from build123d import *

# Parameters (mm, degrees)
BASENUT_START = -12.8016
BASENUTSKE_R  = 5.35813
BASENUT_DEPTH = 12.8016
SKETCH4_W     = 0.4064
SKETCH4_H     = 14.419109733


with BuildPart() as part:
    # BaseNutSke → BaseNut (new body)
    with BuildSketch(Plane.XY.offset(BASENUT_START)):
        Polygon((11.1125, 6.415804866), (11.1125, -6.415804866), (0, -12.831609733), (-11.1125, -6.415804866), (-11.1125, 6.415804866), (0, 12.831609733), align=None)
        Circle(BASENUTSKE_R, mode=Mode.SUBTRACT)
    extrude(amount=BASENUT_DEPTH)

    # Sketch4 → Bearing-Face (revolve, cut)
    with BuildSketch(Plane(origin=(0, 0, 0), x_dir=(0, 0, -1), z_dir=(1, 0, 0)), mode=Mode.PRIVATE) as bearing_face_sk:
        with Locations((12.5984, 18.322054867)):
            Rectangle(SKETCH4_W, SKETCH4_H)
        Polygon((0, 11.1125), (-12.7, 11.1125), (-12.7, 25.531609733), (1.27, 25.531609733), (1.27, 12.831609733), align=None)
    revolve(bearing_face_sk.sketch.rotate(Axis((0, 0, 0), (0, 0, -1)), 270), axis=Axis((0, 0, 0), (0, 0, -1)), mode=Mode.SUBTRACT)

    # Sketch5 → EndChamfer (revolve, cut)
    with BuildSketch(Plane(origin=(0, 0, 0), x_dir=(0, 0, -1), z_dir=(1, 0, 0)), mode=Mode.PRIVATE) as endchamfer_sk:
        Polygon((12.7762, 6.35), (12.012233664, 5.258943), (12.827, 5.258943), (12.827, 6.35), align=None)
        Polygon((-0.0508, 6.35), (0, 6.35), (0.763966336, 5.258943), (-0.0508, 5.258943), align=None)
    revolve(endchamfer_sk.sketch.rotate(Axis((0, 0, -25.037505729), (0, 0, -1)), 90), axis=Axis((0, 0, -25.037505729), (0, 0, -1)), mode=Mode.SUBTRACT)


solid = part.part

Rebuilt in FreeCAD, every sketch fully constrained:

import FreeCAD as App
import Part
import Sketcher
from FreeCAD import Vector
Q = App.Units.Quantity

doc = App.newDocument("Part")
body = doc.addObject("PartDesign::Body", "Body")

# Sketch on XY plane
sketch1 = body.newObject("Sketcher::SketchObject", "Sketch")
sketch1.AttachmentSupport = (doc.getObject("XY_Plane"), [""])
sketch1.MapMode = "FlatFace"
sketch1.AttachmentOffset = App.Placement(Vector(0, 0, -0.504 * 25.4), App.Rotation())
sketch1.addGeometry([
    Part.LineSegment(Vector(11, -6, 0), Vector(11, 6, 0)),  # 0
    Part.LineSegment(Vector(11, 6, 0), Vector(0, 13, 0)),  # 1
    Part.LineSegment(Vector(0, 13, 0), Vector(-11, 6, 0)),  # 2
    Part.LineSegment(Vector(-11, 6, 0), Vector(-11, -6, 0)),  # 3
    Part.LineSegment(Vector(-11, -6, 0), Vector(0, -13, 0)),  # 4
    Part.LineSegment(Vector(0, -13, 0), Vector(11, -6, 0)),  # 5
    Part.Circle(Vector(0, 0, 0), Vector(0, 0, 1), 5),  # 6
], False)
sketch1.addConstraint([
    Sketcher.Constraint("Coincident", 0, 2, 1, 1),
    Sketcher.Constraint("Coincident", 1, 2, 2, 1),
    Sketcher.Constraint("Coincident", 2, 2, 3, 1),
    Sketcher.Constraint("Coincident", 3, 2, 4, 1),
    Sketcher.Constraint("Coincident", 4, 2, 5, 1),
    Sketcher.Constraint("Coincident", 5, 2, 0, 1),
    Sketcher.Constraint("Vertical", 0),
    Sketcher.Constraint("Vertical", 3),
    Sketcher.Constraint("Coincident", 6, 3, -1, 1),
    Sketcher.Constraint("Symmetric", 0, 2, 3, 2, -1, 1),
    Sketcher.Constraint("Symmetric", 1, 2, 4, 2, -1, 1),
    Sketcher.Constraint("PointOnObject", 1, 2, -2),
    Sketcher.Constraint("Parallel", 2, 5),
    Sketcher.Constraint("Horizontal", 0, 2, 2, 2),
    Sketcher.Constraint("Angle", 1, Q("150 deg")),
    Sketcher.Constraint("Diameter", 6, Q("0.4219 in")),
    Sketcher.Constraint("DistanceX", -1, 1, 0, 2, Q("0.4375 in")),
    Sketcher.Constraint("DistanceY", 0, 1, 0, 2, Q("12.83161 mm")),
])
pad1 = body.newObject("PartDesign::Pad", "Pad")
pad1.Profile = sketch1
pad1.Length = Q("0.504 in")

# Sketch on YZ plane
sketch2 = body.newObject("Sketcher::SketchObject", "Sketch001")
sketch2.AttachmentSupport = (doc.getObject("YZ_Plane"), [""])
sketch2.MapMode = "FlatFace"
sketch2.addGeometry([
    Part.LineSegment(Vector(25.53, -12.4, 0), Vector(11.11, -12.4, 0)),  # 0
    Part.LineSegment(Vector(11.11, -12.4, 0), Vector(11.11, -12.8, 0)),  # 1
    Part.LineSegment(Vector(11.11, -12.8, 0), Vector(25.53, -12.8, 0)),  # 2
    Part.LineSegment(Vector(25.53, -12.8, 0), Vector(25.53, -12.4, 0)),  # 3
    Part.LineSegment(Vector(11.11, 12.7, 0), Vector(11.11, 0, 0)),  # 4
    Part.LineSegment(Vector(11.11, 0, 0), Vector(12.83, -1.27, 0)),  # 5
    Part.LineSegment(Vector(12.83, -1.27, 0), Vector(25.53, -1.27, 0)),  # 6
    Part.LineSegment(Vector(25.53, -1.27, 0), Vector(25.53, 12.7, 0)),  # 7
    Part.LineSegment(Vector(25.53, 12.7, 0), Vector(11.11, 12.7, 0)),  # 8
], False)
sketch2.addConstraint([
    Sketcher.Constraint("Coincident", 0, 2, 1, 1),
    Sketcher.Constraint("Coincident", 1, 2, 2, 1),
    Sketcher.Constraint("Coincident", 2, 2, 3, 1),
    Sketcher.Constraint("Coincident", 3, 2, 0, 1),
    Sketcher.Constraint("Coincident", 4, 2, 5, 1),
    Sketcher.Constraint("Coincident", 5, 2, 6, 1),
    Sketcher.Constraint("Coincident", 6, 2, 7, 1),
    Sketcher.Constraint("Coincident", 7, 2, 8, 1),
    Sketcher.Constraint("Coincident", 8, 2, 4, 1),
    Sketcher.Constraint("Horizontal", 0),
    Sketcher.Constraint("Vertical", 1),
    Sketcher.Constraint("Horizontal", 2),
    Sketcher.Constraint("Vertical", 3),
    Sketcher.Constraint("Vertical", 4),
    Sketcher.Constraint("Horizontal", 6),
    Sketcher.Constraint("Vertical", 7),
    Sketcher.Constraint("Horizontal", 8),
    Sketcher.Constraint("PointOnObject", 4, 2, -1),
    Sketcher.Constraint("Vertical", 1, 2, 4, 2),
    Sketcher.Constraint("Vertical", 3, 2, 6, 2),
    Sketcher.Constraint("Equal", 6, 4),
    Sketcher.Constraint("DistanceX", 6, 1, 6, 2, Q("0.5 in")),
    Sketcher.Constraint("DistanceY", 7, 1, 7, 2, Q("0.55 in")),
    Sketcher.Constraint("DistanceY", 1, 2, 1, 1, Q("0.016 in")),
    Sketcher.Constraint("DistanceX", -1, 1, 0, 2, Q("0.4375 in")),
    Sketcher.Constraint("DistanceY", 0, 2, -1, 1, Q("0.488 in")),
    Sketcher.Constraint("DistanceX", 0, 2, 0, 1, Q("14.41911 mm")),
])
groove = body.newObject("PartDesign::Groove", "Groove")
groove.Profile = sketch2
groove.ReferenceAxis = (sketch2, ["V_Axis"])
groove.Angle = 360

# Sketch on YZ plane
sketch3 = body.newObject("Sketcher::SketchObject", "Sketch002")
sketch3.AttachmentSupport = (doc.getObject("YZ_Plane"), [""])
sketch3.MapMode = "FlatFace"
sketch3.addGeometry([
    Part.LineSegment(Vector(6.35, -12.78, 0), Vector(5.26, -12.01, 0)),  # 0
    Part.LineSegment(Vector(5.26, -12.01, 0), Vector(5.26, -12.83, 0)),  # 1
    Part.LineSegment(Vector(5.26, -12.83, 0), Vector(6.35, -12.83, 0)),  # 2
    Part.LineSegment(Vector(6.35, -12.83, 0), Vector(6.35, -12.78, 0)),  # 3
    Part.LineSegment(Vector(6.35, 0, 0), Vector(6.35, 0.05, 0)),  # 4
    Part.LineSegment(Vector(6.35, 0.05, 0), Vector(5.26, 0.05, 0)),  # 5
    Part.LineSegment(Vector(5.26, 0.05, 0), Vector(5.26, -0.76, 0)),  # 6
    Part.LineSegment(Vector(5.26, -0.76, 0), Vector(6.35, 0, 0)),  # 7
], False)
sketch3.addConstraint([
    Sketcher.Constraint("Coincident", 0, 2, 1, 1),
    Sketcher.Constraint("Coincident", 1, 2, 2, 1),
    Sketcher.Constraint("Coincident", 2, 2, 3, 1),
    Sketcher.Constraint("Coincident", 3, 2, 0, 1),
    Sketcher.Constraint("Coincident", 4, 2, 5, 1),
    Sketcher.Constraint("Coincident", 5, 2, 6, 1),
    Sketcher.Constraint("Coincident", 6, 2, 7, 1),
    Sketcher.Constraint("Coincident", 7, 2, 4, 1),
    Sketcher.Constraint("Vertical", 1),
    Sketcher.Constraint("Horizontal", 2),
    Sketcher.Constraint("Vertical", 3),
    Sketcher.Constraint("Vertical", 4),
    Sketcher.Constraint("Horizontal", 5),
    Sketcher.Constraint("Vertical", 6),
    Sketcher.Constraint("PointOnObject", 7, 2, -1),
    Sketcher.Constraint("Vertical", 3, 2, 4, 2),
    Sketcher.Constraint("Vertical", 1, 2, 5, 2),
    Sketcher.Constraint("Equal", 3, 4),
    Sketcher.Constraint("Equal", 1, 6),
    Sketcher.Constraint("Angle", 0, Q("145 deg")),
    Sketcher.Constraint("DistanceY", 3, 1, 3, 2, Q("0.002 in")),
    Sketcher.Constraint("DistanceX", -1, 1, 2, 2, Q("0.25 in")),
    Sketcher.Constraint("DistanceY", 1, 2, -1, 1, Q("0.505 in")),
    Sketcher.Constraint("DistanceX", 2, 1, 2, 2, Q("1.091057 mm")),
])
groove2 = body.newObject("PartDesign::Groove", "Groove001")
groove2.Profile = sketch3
groove2.ReferenceAxis = (sketch3, ["V_Axis"])
groove2.Angle = 360

doc.recompute()
